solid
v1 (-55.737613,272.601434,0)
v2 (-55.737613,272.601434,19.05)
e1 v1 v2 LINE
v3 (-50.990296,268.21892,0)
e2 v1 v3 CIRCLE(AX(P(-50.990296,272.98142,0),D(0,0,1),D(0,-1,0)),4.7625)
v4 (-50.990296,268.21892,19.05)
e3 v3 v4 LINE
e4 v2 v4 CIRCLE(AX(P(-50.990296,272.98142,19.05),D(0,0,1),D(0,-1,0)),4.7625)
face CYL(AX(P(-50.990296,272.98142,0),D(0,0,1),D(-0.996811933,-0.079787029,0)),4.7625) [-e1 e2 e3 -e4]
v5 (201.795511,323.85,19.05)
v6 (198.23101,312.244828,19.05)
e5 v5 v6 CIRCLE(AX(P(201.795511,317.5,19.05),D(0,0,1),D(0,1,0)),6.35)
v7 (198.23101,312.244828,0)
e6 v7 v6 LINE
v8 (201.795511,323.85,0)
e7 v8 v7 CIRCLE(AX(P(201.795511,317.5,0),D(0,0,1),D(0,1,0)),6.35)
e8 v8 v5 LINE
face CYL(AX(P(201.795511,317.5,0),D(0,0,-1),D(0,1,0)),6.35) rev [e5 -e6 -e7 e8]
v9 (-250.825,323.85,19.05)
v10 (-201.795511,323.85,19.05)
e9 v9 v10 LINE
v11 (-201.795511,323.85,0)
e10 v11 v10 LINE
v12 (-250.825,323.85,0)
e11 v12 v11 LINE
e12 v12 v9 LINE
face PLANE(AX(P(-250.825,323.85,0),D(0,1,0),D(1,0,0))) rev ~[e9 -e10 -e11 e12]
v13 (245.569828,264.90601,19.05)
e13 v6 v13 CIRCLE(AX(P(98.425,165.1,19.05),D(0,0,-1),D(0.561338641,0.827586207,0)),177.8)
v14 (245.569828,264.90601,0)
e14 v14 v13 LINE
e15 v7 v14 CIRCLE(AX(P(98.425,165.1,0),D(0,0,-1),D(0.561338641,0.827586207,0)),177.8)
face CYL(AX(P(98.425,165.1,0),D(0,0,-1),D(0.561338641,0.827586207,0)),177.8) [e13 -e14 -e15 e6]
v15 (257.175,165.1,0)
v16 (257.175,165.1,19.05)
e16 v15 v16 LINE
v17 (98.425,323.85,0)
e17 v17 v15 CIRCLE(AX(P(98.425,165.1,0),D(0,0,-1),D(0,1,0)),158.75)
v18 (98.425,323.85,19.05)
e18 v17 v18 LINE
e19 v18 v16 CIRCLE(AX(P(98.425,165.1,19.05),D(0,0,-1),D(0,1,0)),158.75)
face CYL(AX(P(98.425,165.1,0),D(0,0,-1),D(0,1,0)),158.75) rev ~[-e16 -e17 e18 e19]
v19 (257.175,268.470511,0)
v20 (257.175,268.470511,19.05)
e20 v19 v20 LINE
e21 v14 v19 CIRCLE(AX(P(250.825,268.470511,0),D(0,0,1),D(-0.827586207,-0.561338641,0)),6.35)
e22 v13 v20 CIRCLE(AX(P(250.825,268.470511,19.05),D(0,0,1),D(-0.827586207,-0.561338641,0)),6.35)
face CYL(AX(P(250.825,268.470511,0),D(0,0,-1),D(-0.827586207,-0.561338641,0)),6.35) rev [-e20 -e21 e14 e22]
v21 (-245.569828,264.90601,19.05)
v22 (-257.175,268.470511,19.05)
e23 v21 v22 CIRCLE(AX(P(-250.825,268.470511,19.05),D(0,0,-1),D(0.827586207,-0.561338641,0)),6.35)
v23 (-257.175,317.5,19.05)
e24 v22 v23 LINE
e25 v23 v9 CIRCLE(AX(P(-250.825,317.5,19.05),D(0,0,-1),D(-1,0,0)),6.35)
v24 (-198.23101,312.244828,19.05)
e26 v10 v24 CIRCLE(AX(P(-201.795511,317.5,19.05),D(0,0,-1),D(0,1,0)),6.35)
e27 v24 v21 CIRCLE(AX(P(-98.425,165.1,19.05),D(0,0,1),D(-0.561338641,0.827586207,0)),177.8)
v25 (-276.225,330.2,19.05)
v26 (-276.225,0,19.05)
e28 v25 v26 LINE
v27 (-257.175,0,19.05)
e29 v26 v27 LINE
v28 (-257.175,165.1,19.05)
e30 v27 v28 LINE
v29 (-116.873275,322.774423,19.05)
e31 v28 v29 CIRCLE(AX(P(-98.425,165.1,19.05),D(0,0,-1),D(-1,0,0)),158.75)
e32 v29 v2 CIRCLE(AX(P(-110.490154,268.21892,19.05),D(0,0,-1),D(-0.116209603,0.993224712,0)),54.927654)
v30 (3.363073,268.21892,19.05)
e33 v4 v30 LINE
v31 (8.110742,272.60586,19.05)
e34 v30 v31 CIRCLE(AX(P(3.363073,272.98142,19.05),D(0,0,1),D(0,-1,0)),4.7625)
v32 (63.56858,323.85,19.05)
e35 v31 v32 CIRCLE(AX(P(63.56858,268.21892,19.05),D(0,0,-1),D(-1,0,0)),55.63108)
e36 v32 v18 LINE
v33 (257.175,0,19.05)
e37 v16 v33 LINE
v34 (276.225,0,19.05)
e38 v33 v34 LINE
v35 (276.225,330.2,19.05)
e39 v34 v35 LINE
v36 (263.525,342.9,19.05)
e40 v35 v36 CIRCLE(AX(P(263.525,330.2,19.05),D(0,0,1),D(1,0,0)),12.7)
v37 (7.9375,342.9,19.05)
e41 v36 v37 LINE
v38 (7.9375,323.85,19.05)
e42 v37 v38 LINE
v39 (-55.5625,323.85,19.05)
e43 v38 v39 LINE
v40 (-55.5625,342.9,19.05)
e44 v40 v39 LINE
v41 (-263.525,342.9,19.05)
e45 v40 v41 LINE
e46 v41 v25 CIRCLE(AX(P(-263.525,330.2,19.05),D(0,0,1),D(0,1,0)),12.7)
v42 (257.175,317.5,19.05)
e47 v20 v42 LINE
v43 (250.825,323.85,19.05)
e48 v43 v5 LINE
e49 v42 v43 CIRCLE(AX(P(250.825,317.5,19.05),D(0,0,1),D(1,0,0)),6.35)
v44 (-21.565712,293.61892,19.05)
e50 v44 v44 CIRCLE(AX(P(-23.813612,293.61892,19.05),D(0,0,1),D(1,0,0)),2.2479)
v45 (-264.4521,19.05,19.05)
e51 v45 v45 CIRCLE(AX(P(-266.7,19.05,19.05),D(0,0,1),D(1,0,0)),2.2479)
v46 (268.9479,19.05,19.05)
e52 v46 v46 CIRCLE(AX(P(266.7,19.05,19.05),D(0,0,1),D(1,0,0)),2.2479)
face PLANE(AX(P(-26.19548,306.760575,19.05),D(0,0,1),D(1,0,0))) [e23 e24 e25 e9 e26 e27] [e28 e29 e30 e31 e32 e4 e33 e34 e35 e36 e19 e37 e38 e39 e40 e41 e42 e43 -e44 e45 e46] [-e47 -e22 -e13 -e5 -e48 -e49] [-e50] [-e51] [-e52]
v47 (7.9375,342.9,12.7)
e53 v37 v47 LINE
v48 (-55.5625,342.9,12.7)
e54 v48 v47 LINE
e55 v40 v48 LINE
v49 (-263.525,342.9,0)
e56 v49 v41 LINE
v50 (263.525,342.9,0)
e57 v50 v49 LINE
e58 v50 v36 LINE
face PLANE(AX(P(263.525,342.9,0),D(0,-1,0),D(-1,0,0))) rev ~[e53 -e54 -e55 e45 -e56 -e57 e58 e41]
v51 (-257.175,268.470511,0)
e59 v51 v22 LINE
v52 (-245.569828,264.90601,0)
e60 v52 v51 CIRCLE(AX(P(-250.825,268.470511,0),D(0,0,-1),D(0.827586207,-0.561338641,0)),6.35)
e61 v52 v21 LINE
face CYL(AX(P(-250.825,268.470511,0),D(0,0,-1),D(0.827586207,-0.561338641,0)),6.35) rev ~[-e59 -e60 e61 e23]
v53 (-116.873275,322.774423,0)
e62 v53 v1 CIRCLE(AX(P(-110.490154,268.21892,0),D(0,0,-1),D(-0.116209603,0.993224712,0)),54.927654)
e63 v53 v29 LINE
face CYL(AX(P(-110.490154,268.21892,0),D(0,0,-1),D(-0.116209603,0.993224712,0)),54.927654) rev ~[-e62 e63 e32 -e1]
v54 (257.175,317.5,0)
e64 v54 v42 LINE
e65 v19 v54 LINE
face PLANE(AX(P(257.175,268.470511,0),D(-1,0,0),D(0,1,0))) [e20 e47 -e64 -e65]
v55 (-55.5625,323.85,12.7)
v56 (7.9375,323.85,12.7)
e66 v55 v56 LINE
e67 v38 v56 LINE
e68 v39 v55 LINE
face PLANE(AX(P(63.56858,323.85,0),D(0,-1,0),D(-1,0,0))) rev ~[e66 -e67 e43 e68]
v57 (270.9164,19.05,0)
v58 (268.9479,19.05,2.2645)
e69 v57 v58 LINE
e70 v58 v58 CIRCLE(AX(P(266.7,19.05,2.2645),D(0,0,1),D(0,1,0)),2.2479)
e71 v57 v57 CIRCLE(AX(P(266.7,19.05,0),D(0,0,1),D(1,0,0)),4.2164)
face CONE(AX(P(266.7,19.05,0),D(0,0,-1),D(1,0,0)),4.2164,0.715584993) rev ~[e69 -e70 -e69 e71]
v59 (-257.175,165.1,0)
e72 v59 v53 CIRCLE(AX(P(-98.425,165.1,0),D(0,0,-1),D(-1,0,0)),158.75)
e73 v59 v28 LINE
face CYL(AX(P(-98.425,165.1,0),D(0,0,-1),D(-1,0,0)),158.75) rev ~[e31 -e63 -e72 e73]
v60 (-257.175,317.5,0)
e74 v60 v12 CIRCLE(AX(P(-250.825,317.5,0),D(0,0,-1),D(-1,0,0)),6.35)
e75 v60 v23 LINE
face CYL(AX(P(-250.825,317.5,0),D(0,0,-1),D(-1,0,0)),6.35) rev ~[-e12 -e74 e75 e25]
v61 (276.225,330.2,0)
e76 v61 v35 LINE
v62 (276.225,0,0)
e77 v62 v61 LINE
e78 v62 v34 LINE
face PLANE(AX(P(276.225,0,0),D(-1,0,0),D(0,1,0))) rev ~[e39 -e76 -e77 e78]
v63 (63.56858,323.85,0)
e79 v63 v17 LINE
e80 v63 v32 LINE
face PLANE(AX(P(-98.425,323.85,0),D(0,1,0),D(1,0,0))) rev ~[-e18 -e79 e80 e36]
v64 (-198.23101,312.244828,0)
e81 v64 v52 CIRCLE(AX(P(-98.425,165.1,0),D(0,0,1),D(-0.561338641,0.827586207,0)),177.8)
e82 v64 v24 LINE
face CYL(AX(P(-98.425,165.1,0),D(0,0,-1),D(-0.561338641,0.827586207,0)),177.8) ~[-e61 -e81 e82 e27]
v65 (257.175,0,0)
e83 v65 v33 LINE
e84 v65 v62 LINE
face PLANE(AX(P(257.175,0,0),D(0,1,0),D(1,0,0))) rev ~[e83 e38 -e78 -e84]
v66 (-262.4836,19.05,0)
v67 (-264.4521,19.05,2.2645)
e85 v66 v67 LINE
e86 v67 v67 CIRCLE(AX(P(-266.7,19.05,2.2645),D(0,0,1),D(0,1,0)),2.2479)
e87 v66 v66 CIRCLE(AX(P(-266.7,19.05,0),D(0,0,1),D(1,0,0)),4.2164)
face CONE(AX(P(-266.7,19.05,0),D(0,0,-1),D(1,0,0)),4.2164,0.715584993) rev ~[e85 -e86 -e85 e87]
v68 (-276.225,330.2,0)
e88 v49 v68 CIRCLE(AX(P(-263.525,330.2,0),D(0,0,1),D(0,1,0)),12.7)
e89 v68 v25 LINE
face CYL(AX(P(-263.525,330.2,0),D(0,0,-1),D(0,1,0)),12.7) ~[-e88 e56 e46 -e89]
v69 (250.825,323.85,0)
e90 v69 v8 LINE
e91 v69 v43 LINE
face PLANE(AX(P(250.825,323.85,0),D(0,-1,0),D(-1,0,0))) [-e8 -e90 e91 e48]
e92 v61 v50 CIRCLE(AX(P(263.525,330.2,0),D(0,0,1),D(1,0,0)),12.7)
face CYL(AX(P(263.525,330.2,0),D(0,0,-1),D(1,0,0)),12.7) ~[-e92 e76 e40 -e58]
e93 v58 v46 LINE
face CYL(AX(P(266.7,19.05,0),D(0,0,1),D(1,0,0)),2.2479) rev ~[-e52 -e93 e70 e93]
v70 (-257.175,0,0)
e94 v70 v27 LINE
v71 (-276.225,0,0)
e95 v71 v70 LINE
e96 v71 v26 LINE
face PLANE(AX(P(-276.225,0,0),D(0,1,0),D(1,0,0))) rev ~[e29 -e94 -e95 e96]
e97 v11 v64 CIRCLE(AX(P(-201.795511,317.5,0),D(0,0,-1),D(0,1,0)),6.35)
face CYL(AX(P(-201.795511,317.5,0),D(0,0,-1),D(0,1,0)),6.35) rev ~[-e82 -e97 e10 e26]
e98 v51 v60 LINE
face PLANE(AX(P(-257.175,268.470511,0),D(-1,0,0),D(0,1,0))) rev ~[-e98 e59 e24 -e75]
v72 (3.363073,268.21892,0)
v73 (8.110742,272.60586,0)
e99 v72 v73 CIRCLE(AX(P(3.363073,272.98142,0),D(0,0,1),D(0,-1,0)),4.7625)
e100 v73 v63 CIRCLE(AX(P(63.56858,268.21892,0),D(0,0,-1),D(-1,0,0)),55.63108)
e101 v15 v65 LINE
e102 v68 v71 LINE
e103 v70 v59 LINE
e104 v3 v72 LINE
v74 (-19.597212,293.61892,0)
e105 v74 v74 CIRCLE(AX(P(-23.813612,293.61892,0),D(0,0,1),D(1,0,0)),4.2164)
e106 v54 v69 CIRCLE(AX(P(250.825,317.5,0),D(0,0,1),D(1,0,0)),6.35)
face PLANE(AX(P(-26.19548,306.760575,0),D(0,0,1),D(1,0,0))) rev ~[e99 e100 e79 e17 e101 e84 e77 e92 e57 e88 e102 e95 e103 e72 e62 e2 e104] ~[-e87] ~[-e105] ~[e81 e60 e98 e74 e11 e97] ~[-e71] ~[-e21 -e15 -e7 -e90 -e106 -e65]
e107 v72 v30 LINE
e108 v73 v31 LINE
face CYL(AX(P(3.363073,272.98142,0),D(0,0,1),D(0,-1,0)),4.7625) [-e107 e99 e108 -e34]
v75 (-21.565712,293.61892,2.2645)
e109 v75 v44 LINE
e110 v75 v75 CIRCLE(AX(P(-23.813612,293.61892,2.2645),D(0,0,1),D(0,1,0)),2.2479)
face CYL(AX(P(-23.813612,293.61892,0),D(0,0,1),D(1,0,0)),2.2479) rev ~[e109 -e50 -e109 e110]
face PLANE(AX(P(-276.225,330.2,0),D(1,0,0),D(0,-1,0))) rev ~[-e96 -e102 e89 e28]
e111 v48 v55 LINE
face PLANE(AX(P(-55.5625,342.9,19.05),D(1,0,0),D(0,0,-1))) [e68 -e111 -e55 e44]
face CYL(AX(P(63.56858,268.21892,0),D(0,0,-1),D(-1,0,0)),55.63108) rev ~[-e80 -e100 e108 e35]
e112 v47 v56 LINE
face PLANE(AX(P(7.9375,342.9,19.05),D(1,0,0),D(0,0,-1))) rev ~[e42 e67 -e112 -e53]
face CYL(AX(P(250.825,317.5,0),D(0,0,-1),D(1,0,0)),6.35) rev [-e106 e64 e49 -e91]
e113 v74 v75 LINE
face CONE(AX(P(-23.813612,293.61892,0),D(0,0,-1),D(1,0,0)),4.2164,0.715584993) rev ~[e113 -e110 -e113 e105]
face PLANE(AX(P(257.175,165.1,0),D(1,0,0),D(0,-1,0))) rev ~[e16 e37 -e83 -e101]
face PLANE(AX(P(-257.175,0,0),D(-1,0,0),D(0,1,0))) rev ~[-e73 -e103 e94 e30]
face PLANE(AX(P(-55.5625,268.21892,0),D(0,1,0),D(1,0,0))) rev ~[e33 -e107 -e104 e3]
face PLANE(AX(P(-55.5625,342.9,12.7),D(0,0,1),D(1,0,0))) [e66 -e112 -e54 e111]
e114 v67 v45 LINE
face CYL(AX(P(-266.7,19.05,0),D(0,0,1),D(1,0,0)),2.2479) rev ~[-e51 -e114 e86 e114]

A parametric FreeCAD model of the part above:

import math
import FreeCAD as App
import Part
import Sketcher
from FreeCAD import Vector
Q = App.Units.Quantity


def edges_at(feature, points):
    """Names of the edges that pass closest to the given points."""
    edges = feature.Shape.Edges
    near = lambda p: min(range(len(edges)), key=lambda i: edges[i].distToShape(Part.Vertex(*p))[0])
    return sorted({f"Edge{near(p) + 1}" for p in points})


def add_polygon(sketch, points):
    """Adds a closed chain of lines whose ends are joined by coincident constraints."""
    first, n = sketch.GeometryCount, len(points)
    for a, b in zip(points, points[1:] + points[:1]):
        sketch.addGeometry(Part.LineSegment(App.Vector(*a, 0), App.Vector(*b, 0)), False)
    for i in range(n):
        sketch.addConstraint(Sketcher.Constraint("Coincident", first + i, 2, first + (i + 1) % n, 1))

doc = App.newDocument("Part")
params = doc.addObject("Spreadsheet::Sheet", "Params")
for row, (alias, value) in enumerate([
    ("sketch1_radius", "7 in"),
    ("sketch1_radius2", "0.5 in"),
    ("sketch1_height", "13 in"),
    ("sketch1_radius3", "6.25 in"),
    ("sketch1_radius4", "0.25 in"),
    ("pad1_length", "0.75 in"),
    ("sketch2_width", "2.5 in"),
    ("sketch2_height", "0.25 in"),
    ("sketch3_radius", "6.25 in"),
    ("sketch3_width", "2.5 in"),
    ("pad2_length", "0.75 in"),
    ("fillet_radius", "0.1875 in"),
    ("sketch4_diameter", "0.177 in"),
    ("hole_diameter", "0.177 in"),
    ("hole_depth", "1.188 in"),
    ("hole_csink_diameter", "0.332 in"),
], start=1):
    params.set(f"A{row}", alias)
    params.set(f"B{row}", "=" + value)
    params.setAlias(f"B{row}", alias)

body = doc.addObject("PartDesign::Body", "Body")

# Sketch on XY plane
sketch1 = doc.addObject("Sketcher::SketchObject", "Sketch")
body.addObject(sketch1)
sketch1.AttachmentSupport = (doc.XY_Plane, [""])
sketch1.MapMode = "FlatFace"
sketch1.addGeometry([
    Part.LineSegment(Vector(276.225, 0, 0), Vector(276.225, 330.2, 0)),  # 0
    Part.ArcOfCircle(Part.Circle(Vector(263.525, 330.2, 0), Vector(0, 0, 1), 12.7), math.radians(0), math.radians(90)),  # 1
    Part.LineSegment(Vector(263.525, 342.9, 0), Vector(-263.525, 342.9, 0)),  # 2
    Part.ArcOfCircle(Part.Circle(Vector(-263.525, 330.2, 0), Vector(0, 0, 1), 12.7), math.radians(90), math.radians(180)),  # 3
    Part.LineSegment(Vector(-276.225, 330.2, 0), Vector(-276.225, 0, 0)),  # 4
    Part.LineSegment(Vector(-276.225, 0, 0), Vector(-257.175, 0, 0)),  # 5
    Part.LineSegment(Vector(-257.175, 0, 0), Vector(-257.175, 165.1, 0)),  # 6
    Part.ArcOfCircle(Part.Circle(Vector(-98.425, 165.1, 0), Vector(0, 0, 1), 158.75), math.radians(90), math.radians(180)),  # 7
    Part.LineSegment(Vector(-98.425, 323.85, 0), Vector(98.425, 323.85, 0)),  # 8
    Part.ArcOfCircle(Part.Circle(Vector(98.425, 165.1, 0), Vector(0, 0, 1), 158.75), math.radians(0), math.radians(90)),  # 9
    Part.LineSegment(Vector(257.175, 165.1, 0), Vector(257.175, 0, 0)),  # 10
    Part.LineSegment(Vector(257.175, 0, 0), Vector(276.225, 0, 0)),  # 11
    Part.ArcOfCircle(Part.Circle(Vector(-250.825, 317.5, 0), Vector(0, 0, 1), 6.35), math.radians(90), math.radians(180)),  # 12
    Part.LineSegment(Vector(-250.825, 323.85, 0), Vector(-201.795511, 323.85, 0)),  # 13
    Part.ArcOfCircle(Part.Circle(Vector(-201.795511, 317.5, 0), Vector(0, 0, 1), 6.35), math.radians(-55.851576), math.radians(90)),  # 14
    Part.ArcOfCircle(Part.Circle(Vector(-98.425, 165.1, 0), Vector(0, 0, 1), 177.8), math.radians(124.148424), math.radians(145.851576)),  # 15
    Part.ArcOfCircle(Part.Circle(Vector(-250.825, 268.470511, 0), Vector(0, 0, 1), 6.35), math.radians(-180), math.radians(-34.148424)),  # 16
    Part.LineSegment(Vector(-257.175, 268.470511, 0), Vector(-257.175, 317.5, 0)),  # 17
    Part.LineSegment(Vector(201.795511, 323.85, 0), Vector(250.825, 323.85, 0)),  # 18
    Part.ArcOfCircle(Part.Circle(Vector(250.825, 317.5, 0), Vector(0, 0, 1), 6.35), math.radians(0), math.radians(90)),  # 19
    Part.LineSegment(Vector(257.175, 317.5, 0), Vector(257.175, 268.470511, 0)),  # 20
    Part.ArcOfCircle(Part.Circle(Vector(250.825, 268.470511, 0), Vector(0, 0, 1), 6.35), math.radians(-145.851576), math.radians(0)),  # 21
    Part.ArcOfCircle(Part.Circle(Vector(98.425, 165.1, 0), Vector(0, 0, 1), 177.8), math.radians(34.148424), math.radians(55.851576)),  # 22
    Part.ArcOfCircle(Part.Circle(Vector(201.795511, 317.5, 0), Vector(0, 0, 1), 6.35), math.radians(90), math.radians(235.851576)),  # 23
], False)
sketch1.addConstraint([
    Sketcher.Constraint("Tangent", 0, 2, 1, 1),
    Sketcher.Constraint("Tangent", 1, 2, 2, 1),
    Sketcher.Constraint("Tangent", 2, 2, 3, 1),
    Sketcher.Constraint("Tangent", 3, 2, 4, 1),
    Sketcher.Constraint("Coincident", 4, 2, 5, 1),
    Sketcher.Constraint("Coincident", 5, 2, 6, 1),
    Sketcher.Constraint("Tangent", 6, 2, 7, 2),
    Sketcher.Constraint("Tangent", 7, 1, 8, 1),
    Sketcher.Constraint("Tangent", 8, 2, 9, 2),
    Sketcher.Constraint("Tangent", 9, 1, 10, 1),
    Sketcher.Constraint("Coincident", 10, 2, 11, 1),
    Sketcher.Constraint("Coincident", 11, 2, 0, 1),
    Sketcher.Constraint("Tangent", 12, 1, 13, 1),
    Sketcher.Constraint("Tangent", 13, 2, 14, 2),
    Sketcher.Constraint("Tangent", 14, 1, 15, 1),
    Sketcher.Constraint("Tangent", 15, 2, 16, 2),
    Sketcher.Constraint("Tangent", 16, 1, 17, 1),
    Sketcher.Constraint("Tangent", 17, 2, 12, 2),
    Sketcher.Constraint("Tangent", 18, 2, 19, 2),
    Sketcher.Constraint("Tangent", 19, 1, 20, 1),
    Sketcher.Constraint("Tangent", 20, 2, 21, 2),
    Sketcher.Constraint("Tangent", 21, 1, 22, 1),
    Sketcher.Constraint("Tangent", 22, 2, 23, 2),
    Sketcher.Constraint("Tangent", 23, 1, 18, 1),
    Sketcher.Constraint("Vertical", 0),
    Sketcher.Constraint("Horizontal", 2),
    Sketcher.Constraint("Vertical", 4),
    Sketcher.Constraint("Horizontal", 5),
    Sketcher.Constraint("Vertical", 6),
    Sketcher.Constraint("Horizontal", 8),
    Sketcher.Constraint("Vertical", 10),
    Sketcher.Constraint("Horizontal", 11),
    Sketcher.Constraint("Horizontal", 13),
    Sketcher.Constraint("Vertical", 17),
    Sketcher.Constraint("Horizontal", 18),
    Sketcher.Constraint("Vertical", 20),
    Sketcher.Constraint("Coincident", 15, 3, 7, 3),
    Sketcher.Constraint("Coincident", 22, 3, 9, 3),
    Sketcher.Constraint("Equal", 1, 3),
    Sketcher.Constraint("Equal", 7, 9),
    Sketcher.Constraint("Equal", 12, 14),
    Sketcher.Constraint("Equal", 14, 16),
    Sketcher.Constraint("Equal", 16, 19),
    Sketcher.Constraint("Equal", 19, 21),
    Sketcher.Constraint("Equal", 15, 22),
    Sketcher.Constraint("Equal", 21, 23),
    Sketcher.Constraint("Symmetric", 5, 2, 10, 2, -1, 1),
    Sketcher.Constraint("Symmetric", 12, 3, 19, 3, -2),
    Sketcher.Constraint("Symmetric", 4, 2, 11, 2, -2),
    Sketcher.Constraint("Horizontal", 8, 2, 12, 1),
    Sketcher.Constraint("Vertical", 6, 2, 16, 1),
    Sketcher.Constraint("Radius", 15, Q("7 in")),
    Sketcher.Constraint("Radius", 1, Q("0.5 in")),
    Sketcher.Constraint("DistanceY", 0, 1, 0, 2, Q("13 in")),
    Sketcher.Constraint("Radius", 7, Q("6.25 in")),
    Sketcher.Constraint("Radius", 12, Q("0.25 in")),
    Sketcher.Constraint("DistanceY", 6, 1, 6, 2, Q("6.5 in")),
    Sketcher.Constraint("DistanceX", 19, 3, 0, 2, Q("1 in")),
    Sketcher.Constraint("DistanceX", 2, 2, 2, 1, Q("20.75 in")),
])
sketch1.setExpression("Constraints[51]", "Params.sketch1_radius")
sketch1.setExpression("Constraints[52]", "Params.sketch1_radius2")
sketch1.setExpression("Constraints[53]", "Params.sketch1_height")
sketch1.setExpression("Constraints[54]", "Params.sketch1_radius3")
sketch1.setExpression("Constraints[55]", "Params.sketch1_radius4")
pad1 = doc.addObject("PartDesign::Pad", "Pad")
body.addObject(pad1)
pad1.Profile = sketch1
pad1.setExpression("Length", "Params.pad1_length")

# Sketch on XZ plane
sketch2 = doc.addObject("Sketcher::SketchObject", "Sketch001")
body.addObject(sketch2)
sketch2.AttachmentSupport = (doc.XZ_Plane, [""])
sketch2.MapMode = "FlatFace"
sketch2.AttachmentOffset = App.Placement(Vector(0, 0, -13.5 * 25.4), App.Rotation())
add_polygon(sketch2, [(-55.5625, 12.7), (-55.5625, 19.05), (7.9375, 19.05), (7.9375, 12.7)])  # lines 0-3
sketch2.addConstraint([
    Sketcher.Constraint("Vertical", 0),
    Sketcher.Constraint("Horizontal", 1),
    Sketcher.Constraint("Vertical", 2),
    Sketcher.Constraint("Horizontal", 3),
    Sketcher.Constraint("DistanceX", 1, 1, 1, 2, Q("2.5 in")),
    Sketcher.Constraint("DistanceY", 0, 1, 0, 2, Q("0.25 in")),
    Sketcher.Constraint("DistanceY", -1, 1, 2, 2, Q("0.5 in")),
    Sketcher.Constraint("DistanceX", 0, 2, -1, 1, Q("2.1875 in")),
])
sketch2.setExpression("Constraints[8]", "Params.sketch2_width")
sketch2.setExpression("Constraints[9]", "Params.sketch2_height")
pocket1 = doc.addObject("PartDesign::Pocket", "Pocket")
body.addObject(pocket1)
pocket1.Profile = sketch2
pocket1.Type = "ThroughAll"
pocket1.Reversed = True

# Sketch on XY plane
sketch3 = doc.addObject("Sketcher::SketchObject", "Sketch002")
body.addObject(sketch3)
sketch3.AttachmentSupport = (doc.XY_Plane, [""])
sketch3.MapMode = "FlatFace"
sketch3.addGeometry([
    Part.ArcOfCircle(Part.Circle(Vector(-110.490154, 268.21892, 0), Vector(0, 0, 1), 54.927654), math.radians(0), math.radians(96.673398)),  # 0
    Part.LineSegment(Vector(-55.5625, 268.21892, 0), Vector(7.9375, 268.21892, 0)),  # 1
    Part.ArcOfCircle(Part.Circle(Vector(63.56858, 268.21892, 0), Vector(0, 0, 1), 55.63108), math.radians(90), math.radians(180)),  # 2
    Part.LineSegment(Vector(63.56858, 323.85, 0), Vector(-98.425, 323.85, 0)),  # 3
    Part.ArcOfCircle(Part.Circle(Vector(-98.425, 165.1, 0), Vector(0, 0, 1), 158.75), math.radians(90), math.radians(96.673398)),  # 4
], False)
sketch3.addConstraint([
    Sketcher.Constraint("Coincident", 0, 1, 1, 1),
    Sketcher.Constraint("Coincident", 1, 2, 2, 2),
    Sketcher.Constraint("Tangent", 2, 1, 3, 1),
    Sketcher.Constraint("Tangent", 3, 2, 4, 1),
    Sketcher.Constraint("Tangent", 4, 2, 0, 2),
    Sketcher.Constraint("Horizontal", 1),
    Sketcher.Constraint("Horizontal", 3),
    Sketcher.Constraint("Horizontal", 0, 3, 2, 3),
    Sketcher.Constraint("Horizontal", 2, 3, 0, 1),
    Sketcher.Constraint("Radius", 4, Q("6.25 in")),
    Sketcher.Constraint("DistanceX", 1, 1, 1, 2, Q("2.5 in")),
    Sketcher.Constraint("DistanceY", -1, 1, 4, 3, Q("6.5 in")),
    Sketcher.Constraint("Radius", 2, Q("2.1902 in")),
    Sketcher.Constraint("DistanceX", 3, 2, 3, 1, Q("6.3777 in")),
    Sketcher.Constraint("DistanceX", 4, 3, -1, 1, Q("3.875 in")),
])
sketch3.setExpression("Constraints[9]", "Params.sketch3_radius")
sketch3.setExpression("Constraints[10]", "Params.sketch3_width")
pad2 = doc.addObject("PartDesign::Pad", "Pad001")
body.addObject(pad2)
pad2.Profile = sketch3
pad2.setExpression("Length", "Params.pad2_length")
doc.recompute()

fillet = doc.addObject("PartDesign::Fillet", "Fillet")
body.addObject(fillet)
fillet.Base = (pad2, edges_at(pad2, [(-55.562, 268.219, 9.525), (7.938, 268.219, 9.525)]))
fillet.setExpression("Radius", "Params.fillet_radius")

# Sketch on XY plane
sketch4 = doc.addObject("Sketcher::SketchObject", "Sketch003")
body.addObject(sketch4)
sketch4.AttachmentSupport = (doc.XY_Plane, [""])
sketch4.MapMode = "FlatFace"
sketch4.addGeometry([
    Part.Circle(Vector(-23.813612, 293.61892, 0), Vector(0, 0, 1), 2.2479),
    Part.Circle(Vector(-266.7, 19.05, 0), Vector(0, 0, 1), 2.2479),
    Part.Circle(Vector(266.7, 19.05, 0), Vector(0, 0, 1), 2.2479),
], False)
sketch4.addConstraint([
    Sketcher.Constraint("Equal", 0, 1),
    Sketcher.Constraint("Equal", 1, 2),
    Sketcher.Constraint("Symmetric", 1, 3, 2, 3, -2),
    Sketcher.Constraint("Diameter", 0, Q("0.177 in")),
    Sketcher.Constraint("DistanceX", 1, 3, 2, 3, Q("21 in")),
    Sketcher.Constraint("DistanceY", -1, 1, 1, 3, Q("0.75 in")),
    Sketcher.Constraint("DistanceY", -1, 1, 0, 3, Q("11.5598 in")),
    Sketcher.Constraint("DistanceX", 0, 3, -1, 1, 23.813612),
])
sketch4.setExpression("Constraints[3]", "Params.sketch4_diameter")
doc.recompute()
hole = doc.addObject("PartDesign::Hole", "Hole")
body.addObject(hole)
hole.Profile = sketch4
hole.ThreadType = "None"
hole.setExpression("Diameter", "Params.hole_diameter")
hole.DepthType = "Dimension"
hole.setExpression("Depth", "Params.hole_depth")
hole.DrillPoint = "Angled"
hole.DrillPointAngle = 118
hole.HoleCutType = "Countersink"
hole.setExpression("HoleCutDiameter", "Params.hole_csink_diameter")
hole.HoleCutCountersinkAngle = 82
hole.Reversed = True

doc.recompute()
